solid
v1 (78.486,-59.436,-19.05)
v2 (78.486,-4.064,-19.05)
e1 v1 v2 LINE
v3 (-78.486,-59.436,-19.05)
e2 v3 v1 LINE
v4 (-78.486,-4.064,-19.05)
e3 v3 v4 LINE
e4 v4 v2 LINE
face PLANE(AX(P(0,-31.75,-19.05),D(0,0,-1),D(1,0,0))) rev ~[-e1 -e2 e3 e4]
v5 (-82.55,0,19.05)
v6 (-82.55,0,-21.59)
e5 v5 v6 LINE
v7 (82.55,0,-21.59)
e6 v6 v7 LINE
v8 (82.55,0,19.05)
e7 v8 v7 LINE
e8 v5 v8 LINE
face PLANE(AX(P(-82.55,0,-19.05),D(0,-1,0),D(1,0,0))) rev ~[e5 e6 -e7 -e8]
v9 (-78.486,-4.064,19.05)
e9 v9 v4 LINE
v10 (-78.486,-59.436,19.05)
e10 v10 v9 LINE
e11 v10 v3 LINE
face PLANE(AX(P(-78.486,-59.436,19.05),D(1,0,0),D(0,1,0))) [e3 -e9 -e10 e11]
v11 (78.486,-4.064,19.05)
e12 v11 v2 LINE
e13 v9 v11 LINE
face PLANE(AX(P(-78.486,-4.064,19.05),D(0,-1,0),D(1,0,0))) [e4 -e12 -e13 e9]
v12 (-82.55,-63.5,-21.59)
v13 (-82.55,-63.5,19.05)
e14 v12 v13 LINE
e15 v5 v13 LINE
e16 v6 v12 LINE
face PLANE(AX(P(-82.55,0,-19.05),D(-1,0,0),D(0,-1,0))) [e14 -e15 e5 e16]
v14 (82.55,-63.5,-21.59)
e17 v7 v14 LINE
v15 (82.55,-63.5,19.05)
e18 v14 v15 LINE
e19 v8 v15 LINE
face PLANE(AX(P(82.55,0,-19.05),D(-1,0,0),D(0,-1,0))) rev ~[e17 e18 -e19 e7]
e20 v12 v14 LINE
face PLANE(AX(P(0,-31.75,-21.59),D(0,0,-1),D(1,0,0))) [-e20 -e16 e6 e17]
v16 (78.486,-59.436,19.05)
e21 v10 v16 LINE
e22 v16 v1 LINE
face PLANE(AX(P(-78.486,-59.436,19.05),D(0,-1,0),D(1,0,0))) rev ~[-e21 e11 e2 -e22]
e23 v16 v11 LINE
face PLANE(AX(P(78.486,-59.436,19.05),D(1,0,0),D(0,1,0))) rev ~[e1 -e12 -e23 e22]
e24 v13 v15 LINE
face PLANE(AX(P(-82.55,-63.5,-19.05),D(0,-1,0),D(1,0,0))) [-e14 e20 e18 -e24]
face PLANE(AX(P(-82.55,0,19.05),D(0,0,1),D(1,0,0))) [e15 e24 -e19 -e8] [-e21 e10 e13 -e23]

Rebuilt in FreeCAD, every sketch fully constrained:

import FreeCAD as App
import Part
import Sketcher
Q = App.Units.Quantity


def add_polygon(sketch, points):
    """Adds a closed chain of lines whose ends are joined by coincident constraints."""
    first, n = sketch.GeometryCount, len(points)
    for a, b in zip(points, points[1:] + points[:1]):
        sketch.addGeometry(Part.LineSegment(App.Vector(*a, 0), App.Vector(*b, 0)), False)
    for i in range(n):
        sketch.addConstraint(Sketcher.Constraint("Coincident", first + i, 2, first + (i + 1) % n, 1))

doc = App.newDocument("Part")
body = doc.addObject("PartDesign::Body", "Body")

# Sketch on XZ plane
sketch1 = body.newObject("Sketcher::SketchObject", "Sketch")
sketch1.AttachmentSupport = (doc.getObject("XZ_Plane"), [""])
sketch1.MapMode = "FlatFace"
add_polygon(sketch1, [(-83, 19), (-83, -19), (83, -19), (83, 19)])  # lines 0-3
sketch1.addConstraint([
    Sketcher.Constraint("Vertical", 0),
    Sketcher.Constraint("Horizontal", 1),
    Sketcher.Constraint("Vertical", 2),
    Sketcher.Constraint("Horizontal", 3),
    Sketcher.Constraint("Symmetric", 0, 2, 2, 2, -1, 1),
    Sketcher.Constraint("DistanceX", 1, 1, 1, 2, Q("6.5 in")),
    Sketcher.Constraint("DistanceY", 0, 2, 0, 1, Q("1.5 in")),
])
pad1 = body.newObject("PartDesign::Pad", "Pad")
pad1.Profile = sketch1
pad1.Length = Q("2.5 in")

# Sketch on XY plane
sketch2 = body.newObject("Sketcher::SketchObject", "Sketch001")
sketch2.AttachmentSupport = (doc.getObject("XY_Plane"), [""])
sketch2.MapMode = "FlatFace"
sketch2.AttachmentOffset = App.Placement(App.Vector(0, 0, 0.75 * 25.4), App.Rotation())
add_polygon(sketch2, [(-78, -4), (-78, -59), (78, -59), (78, -4)])  # lines 0-3
sketch2.addConstraint([
    Sketcher.Constraint("Vertical", 0),
    Sketcher.Constraint("Horizontal", 1),
    Sketcher.Constraint("Vertical", 2),
    Sketcher.Constraint("Horizontal", 3),
    Sketcher.Constraint("DistanceX", 1, 1, 1, 2, Q("6.18 in")),
    Sketcher.Constraint("DistanceY", 0, 2, 0, 1, Q("2.18 in")),
    Sketcher.Constraint("DistanceX", 0, 2, -1, 1, Q("3.09 in")),
    Sketcher.Constraint("DistanceY", 0, 2, -1, 1, Q("2.34 in")),
])
pocket1 = body.newObject("PartDesign::Pocket", "Pocket")
pocket1.Profile = sketch2
pocket1.Length = Q("1.84 in")

# Sketch on XY plane
sketch3 = body.newObject("Sketcher::SketchObject", "Sketch002")
sketch3.AttachmentSupport = (doc.getObject("XY_Plane"), [""])
sketch3.MapMode = "FlatFace"
sketch3.AttachmentOffset = App.Placement(App.Vector(0, 0, -0.75 * 25.4), App.Rotation())
add_polygon(sketch3, [(-83, -64), (-83, 0), (83, 0), (83, -64)])  # lines 0-3
sketch3.addConstraint([
    Sketcher.Constraint("Vertical", 0),
    Sketcher.Constraint("Horizontal", 1),
    Sketcher.Constraint("Vertical", 2),
    Sketcher.Constraint("Horizontal", 3),
    Sketcher.Constraint("Symmetric", 0, 2, 1, 2, -1, 1),
    Sketcher.Constraint("DistanceX", 1, 1, 1, 2, Q("6.5 in")),
    Sketcher.Constraint("DistanceY", 0, 1, 0, 2, Q("2.5 in")),
])
pad2 = body.newObject("PartDesign::Pad", "Pad001")
pad2.Profile = sketch3
pad2.Length = Q("0.1 in")
pad2.Reversed = True

doc.recompute()
